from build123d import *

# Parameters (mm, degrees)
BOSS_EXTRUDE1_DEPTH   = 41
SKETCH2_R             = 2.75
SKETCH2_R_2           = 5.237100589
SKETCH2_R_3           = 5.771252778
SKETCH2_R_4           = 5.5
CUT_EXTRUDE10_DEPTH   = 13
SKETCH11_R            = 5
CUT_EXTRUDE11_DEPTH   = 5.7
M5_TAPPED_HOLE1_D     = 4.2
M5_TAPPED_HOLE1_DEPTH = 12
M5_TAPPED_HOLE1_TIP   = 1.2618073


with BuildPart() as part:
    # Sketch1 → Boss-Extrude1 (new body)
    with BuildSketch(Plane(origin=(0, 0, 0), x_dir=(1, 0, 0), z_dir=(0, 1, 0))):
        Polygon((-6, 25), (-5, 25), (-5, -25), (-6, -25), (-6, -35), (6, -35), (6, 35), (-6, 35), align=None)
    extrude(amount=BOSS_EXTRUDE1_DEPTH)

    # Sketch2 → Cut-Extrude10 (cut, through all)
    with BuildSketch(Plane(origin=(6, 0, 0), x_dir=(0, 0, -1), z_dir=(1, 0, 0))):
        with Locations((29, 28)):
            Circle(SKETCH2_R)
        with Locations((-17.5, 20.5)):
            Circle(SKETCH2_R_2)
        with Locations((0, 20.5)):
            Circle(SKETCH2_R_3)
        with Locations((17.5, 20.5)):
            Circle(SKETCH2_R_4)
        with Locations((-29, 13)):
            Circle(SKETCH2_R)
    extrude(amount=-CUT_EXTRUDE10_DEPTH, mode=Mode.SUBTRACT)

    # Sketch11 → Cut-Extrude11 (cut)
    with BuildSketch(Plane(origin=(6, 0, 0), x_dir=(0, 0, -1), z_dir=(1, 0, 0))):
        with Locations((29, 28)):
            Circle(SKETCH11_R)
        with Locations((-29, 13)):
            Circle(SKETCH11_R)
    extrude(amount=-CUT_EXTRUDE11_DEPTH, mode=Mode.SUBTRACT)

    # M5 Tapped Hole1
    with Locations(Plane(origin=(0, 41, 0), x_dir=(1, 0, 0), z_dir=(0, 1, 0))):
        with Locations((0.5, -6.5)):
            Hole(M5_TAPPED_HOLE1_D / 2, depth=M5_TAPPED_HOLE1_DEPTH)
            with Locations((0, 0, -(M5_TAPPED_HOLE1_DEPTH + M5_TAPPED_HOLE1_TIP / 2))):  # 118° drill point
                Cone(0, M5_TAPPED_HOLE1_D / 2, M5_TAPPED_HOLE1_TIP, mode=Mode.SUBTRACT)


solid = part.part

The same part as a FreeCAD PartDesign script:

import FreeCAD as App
import Part
import Sketcher

V = App.Vector
Q = App.Units.Quantity


def add_polygon(sketch, points):
    """Adds a closed chain of lines whose ends are joined by coincident constraints."""
    first, n = sketch.GeometryCount, len(points)
    for a, b in zip(points, points[1:] + points[:1]):
        sketch.addGeometry(Part.LineSegment(App.Vector(*a, 0), App.Vector(*b, 0)), False)
    for i in range(n):
        sketch.addConstraint(Sketcher.Constraint("Coincident", first + i, 2, first + (i + 1) % n, 1))

doc = App.newDocument("Part")
body = doc.addObject("PartDesign::Body", "Body")

sketch1 = body.newObject("Sketcher::SketchObject", "Sketch")
sketch1.AttachmentSupport = (doc.getObject("XZ_Plane"), [""])
sketch1.MapMode = "FlatFace"
add_polygon(sketch1, [(-6, -25), (-5, -25), (-5, 25), (-6, 25), (-6, 35), (6, 35), (6, -35), (-6, -35)])
sketch1.addConstraint([
    Sketcher.Constraint("Horizontal", 0),
    Sketcher.Constraint("Vertical", 1),
    Sketcher.Constraint("Horizontal", 2),
    Sketcher.Constraint("Vertical", 3),
    Sketcher.Constraint("Horizontal", 4),
    Sketcher.Constraint("Vertical", 5),
    Sketcher.Constraint("Horizontal", 6),
    Sketcher.Constraint("Vertical", 7),
    Sketcher.Constraint("Symmetric", 3, 2, 5, 2, -1, 1),
    Sketcher.Constraint("Symmetric", 2, 2, 7, 2, -1),
    Sketcher.Constraint("DistanceX", 0, 1, 0, 2, Q("1 mm")),
    Sketcher.Constraint("DistanceX", 4, 1, 4, 2, Q("12 mm")),
    Sketcher.Constraint("DistanceY", 1, 1, 1, 2, Q("50 mm")),
    Sketcher.Constraint("DistanceY", 3, 1, 3, 2, Q("10 mm")),
])
pad1 = body.newObject("PartDesign::Pad", "Pad")
pad1.Profile = sketch1
pad1.Length = 41
pad1.Reversed = True

sketch2 = body.newObject("Sketcher::SketchObject", "Sketch001")
sketch2.AttachmentSupport = (doc.getObject("YZ_Plane"), [""])
sketch2.MapMode = "FlatFace"
sketch2.AttachmentOffset = App.Placement(V(0, 0, 6), App.Rotation())
sketch2.addGeometry([
    Part.Circle(V(28, -29, 0), V(0, 0, 1), 2.75),
    Part.Circle(V(20.5, 17.5, 0), V(0, 0, 1), 5.237101),
    Part.Circle(V(20.5, 0, 0), V(0, 0, 1), 5.771253),
    Part.Circle(V(20.5, -17.5, 0), V(0, 0, 1), 5.5),
    Part.Circle(V(13, 29, 0), V(0, 0, 1), 2.75),
], False)
sketch2.addConstraint([
    Sketcher.Constraint("Equal", 0, 4),
    Sketcher.Constraint("Symmetric", 1, 3, 3, 3, -1),
    Sketcher.Constraint("PointOnObject", 2, 3, -1),
    Sketcher.Constraint("Vertical", 1, 3, 2, 3),
    Sketcher.Constraint("Diameter", 3, Q("11 mm")),
    Sketcher.Constraint("Diameter", 0, Q("5.5 mm")),
    Sketcher.Constraint("DistanceX", -1, 1, 0, 3, Q("28 mm")),
    Sketcher.Constraint("DistanceY", 0, 3, -1, 1, Q("29 mm")),
    Sketcher.Constraint("DistanceX", -1, 1, 4, 3, Q("13 mm")),
    Sketcher.Constraint("DistanceY", -1, 1, 4, 3, Q("29 mm")),
    Sketcher.Constraint("DistanceY", 3, 3, 1, 3, Q("35 mm")),
    Sketcher.Constraint("Diameter", 1, Q("10.474201 mm")),
    Sketcher.Constraint("DistanceX", -1, 1, 1, 3, Q("20.5 mm")),
    Sketcher.Constraint("Diameter", 2, Q("11.542506 mm")),
])
pocket1 = body.newObject("PartDesign::Pocket", "Pocket")
pocket1.Profile = sketch2
pocket1.Type = "ThroughAll"

sketch3 = body.newObject("Sketcher::SketchObject", "Sketch002")
sketch3.AttachmentSupport = (doc.getObject("YZ_Plane"), [""])
sketch3.MapMode = "FlatFace"
sketch3.AttachmentOffset = App.Placement(V(0, 0, 6), App.Rotation())
sketch3.addGeometry([
    Part.Circle(V(28, -29, 0), V(0, 0, 1), 5),
    Part.Circle(V(13, 29, 0), V(0, 0, 1), 5),
], False)
sketch3.addConstraint([
    Sketcher.Constraint("Equal", 0, 1),
    Sketcher.Constraint("Diameter", 0, Q("10 mm")),
    Sketcher.Constraint("DistanceX", -1, 1, 0, 3, Q("28 mm")),
    Sketcher.Constraint("DistanceY", 0, 3, -1, 1, Q("29 mm")),
    Sketcher.Constraint("DistanceX", -1, 1, 1, 3, Q("13 mm")),
    Sketcher.Constraint("DistanceY", -1, 1, 1, 3, Q("29 mm")),
])
pocket2 = body.newObject("PartDesign::Pocket", "Pocket001")
pocket2.Profile = sketch3
pocket2.Length = 5.7

sketch4 = body.newObject("Sketcher::SketchObject", "Sketch003")
sketch4.AttachmentSupport = (doc.getObject("XZ_Plane"), [""])
sketch4.MapMode = "FlatFace"
sketch4.AttachmentOffset = App.Placement(V(0, 0, -41), App.Rotation())
sketch4.addGeometry(Part.Circle(V(0.5, 6.5, 0), V(0, 0, 1), 2.1), False)
sketch4.addConstraint([
    Sketcher.Constraint("Diameter", 0, Q("4.2 mm")),
    Sketcher.Constraint("DistanceX", -1, 1, 0, 3, Q("0.5 mm")),
    Sketcher.Constraint("DistanceY", -1, 1, 0, 3, Q("6.5 mm")),
])
doc.recompute()
hole = body.newObject("PartDesign::Hole", "Hole")
hole.Profile = sketch4
hole.ThreadType = "None"
hole.Diameter = 4.2
hole.DepthType = "Dimension"
hole.Depth = 12
hole.DrillPoint = "Angled"
hole.DrillPointAngle = 118
hole.Reversed = True

doc.recompute()
